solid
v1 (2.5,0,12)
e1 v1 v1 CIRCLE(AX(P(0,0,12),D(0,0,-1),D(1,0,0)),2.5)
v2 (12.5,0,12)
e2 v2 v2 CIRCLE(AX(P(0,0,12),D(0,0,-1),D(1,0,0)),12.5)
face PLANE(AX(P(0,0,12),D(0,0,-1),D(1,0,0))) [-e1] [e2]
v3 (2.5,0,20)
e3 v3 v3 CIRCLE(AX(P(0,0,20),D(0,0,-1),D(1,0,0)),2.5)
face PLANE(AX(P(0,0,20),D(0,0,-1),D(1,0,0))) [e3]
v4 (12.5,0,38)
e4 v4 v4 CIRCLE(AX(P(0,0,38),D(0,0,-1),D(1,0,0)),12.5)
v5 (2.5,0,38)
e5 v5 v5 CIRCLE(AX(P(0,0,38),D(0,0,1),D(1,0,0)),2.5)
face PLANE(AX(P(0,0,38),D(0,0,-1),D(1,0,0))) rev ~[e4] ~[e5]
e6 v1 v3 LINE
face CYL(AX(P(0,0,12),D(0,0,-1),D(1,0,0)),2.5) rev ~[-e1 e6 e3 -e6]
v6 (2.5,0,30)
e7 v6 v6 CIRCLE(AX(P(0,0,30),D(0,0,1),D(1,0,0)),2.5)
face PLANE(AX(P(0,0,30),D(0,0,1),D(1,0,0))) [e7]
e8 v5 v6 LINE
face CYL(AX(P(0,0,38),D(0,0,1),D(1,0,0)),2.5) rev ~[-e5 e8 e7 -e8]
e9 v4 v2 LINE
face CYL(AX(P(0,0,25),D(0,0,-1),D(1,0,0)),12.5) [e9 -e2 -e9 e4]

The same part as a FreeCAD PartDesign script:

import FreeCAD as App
import Part
import Sketcher

V = App.Vector

doc = App.newDocument("Part")
body = doc.addObject("PartDesign::Body", "Body")

sketch1 = body.newObject("Sketcher::SketchObject", "Sketch")
sketch1.AttachmentSupport = (doc.getObject("XZ_Plane"), [""])
sketch1.MapMode = "FlatFace"
sketch1.addGeometry(Part.Circle(V(0, 0, 0), V(0, 0, 1), 12), False)
sketch1.addConstraint(Sketcher.Constraint("Coincident", 0, 3, -1, 1))
sketch1.addConstraint(Sketcher.Constraint("Diameter", 0, 25.0))
pad1 = body.newObject("PartDesign::Pad", "Pad")
pad1.Profile = sketch1
pad1.Length = 26
pad1.Midplane = True

sketch2 = body.newObject("Sketcher::SketchObject", "Sketch001")
sketch2.AttachmentSupport = (doc.getObject("XZ_Plane"), [""])
sketch2.MapMode = "FlatFace"
sketch2.AttachmentOffset = App.Placement(V(0, 0, 13), App.Rotation())
sketch2.addGeometry(Part.Circle(V(0, 0, 0), V(0, 0, 1), 2.5), False)
sketch2.addConstraint(Sketcher.Constraint("Coincident", 0, 3, -1, 1))
sketch2.addConstraint(Sketcher.Constraint("Diameter", 0, 5.0))
pocket1 = body.newObject("PartDesign::Pocket", "Pocket")
pocket1.Profile = sketch2
pocket1.Length = 8

sketch3 = body.newObject("Sketcher::SketchObject", "Sketch002")
sketch3.AttachmentSupport = (doc.getObject("XZ_Plane"), [""])
sketch3.MapMode = "FlatFace"
sketch3.AttachmentOffset = App.Placement(V(0, 0, -13), App.Rotation())
sketch3.addGeometry(Part.Circle(V(0, 0, 0), V(0, 0, 1), 2.5), False)
sketch3.addConstraint(Sketcher.Constraint("Coincident", 0, 3, -1, 1))
sketch3.addConstraint(Sketcher.Constraint("Diameter", 0, 5.0))
pocket2 = body.newObject("PartDesign::Pocket", "Pocket001")
pocket2.Profile = sketch3
pocket2.Length = 8
pocket2.Reversed = True
body2 = doc.addObject("PartDesign::Body", "Body001")
doc.recompute()

body.Placement = App.Placement(V(0, 0, 0), App.Rotation(V(1, 0, 0), 90))
boolean = body2.newObject("PartDesign::Boolean", "Boolean")
boolean.Type = "Fuse"
boolean.addObjects([body])
body3 = doc.addObject("PartDesign::Body", "Body002")
doc.recompute()

body2.Placement = App.Placement(V(0, 0, 25), App.Rotation(V(0, 0, 1), 0))
boolean2 = body3.newObject("PartDesign::Boolean", "Boolean001")
boolean2.Type = "Fuse"
boolean2.addObjects([body2])

doc.recompute()
